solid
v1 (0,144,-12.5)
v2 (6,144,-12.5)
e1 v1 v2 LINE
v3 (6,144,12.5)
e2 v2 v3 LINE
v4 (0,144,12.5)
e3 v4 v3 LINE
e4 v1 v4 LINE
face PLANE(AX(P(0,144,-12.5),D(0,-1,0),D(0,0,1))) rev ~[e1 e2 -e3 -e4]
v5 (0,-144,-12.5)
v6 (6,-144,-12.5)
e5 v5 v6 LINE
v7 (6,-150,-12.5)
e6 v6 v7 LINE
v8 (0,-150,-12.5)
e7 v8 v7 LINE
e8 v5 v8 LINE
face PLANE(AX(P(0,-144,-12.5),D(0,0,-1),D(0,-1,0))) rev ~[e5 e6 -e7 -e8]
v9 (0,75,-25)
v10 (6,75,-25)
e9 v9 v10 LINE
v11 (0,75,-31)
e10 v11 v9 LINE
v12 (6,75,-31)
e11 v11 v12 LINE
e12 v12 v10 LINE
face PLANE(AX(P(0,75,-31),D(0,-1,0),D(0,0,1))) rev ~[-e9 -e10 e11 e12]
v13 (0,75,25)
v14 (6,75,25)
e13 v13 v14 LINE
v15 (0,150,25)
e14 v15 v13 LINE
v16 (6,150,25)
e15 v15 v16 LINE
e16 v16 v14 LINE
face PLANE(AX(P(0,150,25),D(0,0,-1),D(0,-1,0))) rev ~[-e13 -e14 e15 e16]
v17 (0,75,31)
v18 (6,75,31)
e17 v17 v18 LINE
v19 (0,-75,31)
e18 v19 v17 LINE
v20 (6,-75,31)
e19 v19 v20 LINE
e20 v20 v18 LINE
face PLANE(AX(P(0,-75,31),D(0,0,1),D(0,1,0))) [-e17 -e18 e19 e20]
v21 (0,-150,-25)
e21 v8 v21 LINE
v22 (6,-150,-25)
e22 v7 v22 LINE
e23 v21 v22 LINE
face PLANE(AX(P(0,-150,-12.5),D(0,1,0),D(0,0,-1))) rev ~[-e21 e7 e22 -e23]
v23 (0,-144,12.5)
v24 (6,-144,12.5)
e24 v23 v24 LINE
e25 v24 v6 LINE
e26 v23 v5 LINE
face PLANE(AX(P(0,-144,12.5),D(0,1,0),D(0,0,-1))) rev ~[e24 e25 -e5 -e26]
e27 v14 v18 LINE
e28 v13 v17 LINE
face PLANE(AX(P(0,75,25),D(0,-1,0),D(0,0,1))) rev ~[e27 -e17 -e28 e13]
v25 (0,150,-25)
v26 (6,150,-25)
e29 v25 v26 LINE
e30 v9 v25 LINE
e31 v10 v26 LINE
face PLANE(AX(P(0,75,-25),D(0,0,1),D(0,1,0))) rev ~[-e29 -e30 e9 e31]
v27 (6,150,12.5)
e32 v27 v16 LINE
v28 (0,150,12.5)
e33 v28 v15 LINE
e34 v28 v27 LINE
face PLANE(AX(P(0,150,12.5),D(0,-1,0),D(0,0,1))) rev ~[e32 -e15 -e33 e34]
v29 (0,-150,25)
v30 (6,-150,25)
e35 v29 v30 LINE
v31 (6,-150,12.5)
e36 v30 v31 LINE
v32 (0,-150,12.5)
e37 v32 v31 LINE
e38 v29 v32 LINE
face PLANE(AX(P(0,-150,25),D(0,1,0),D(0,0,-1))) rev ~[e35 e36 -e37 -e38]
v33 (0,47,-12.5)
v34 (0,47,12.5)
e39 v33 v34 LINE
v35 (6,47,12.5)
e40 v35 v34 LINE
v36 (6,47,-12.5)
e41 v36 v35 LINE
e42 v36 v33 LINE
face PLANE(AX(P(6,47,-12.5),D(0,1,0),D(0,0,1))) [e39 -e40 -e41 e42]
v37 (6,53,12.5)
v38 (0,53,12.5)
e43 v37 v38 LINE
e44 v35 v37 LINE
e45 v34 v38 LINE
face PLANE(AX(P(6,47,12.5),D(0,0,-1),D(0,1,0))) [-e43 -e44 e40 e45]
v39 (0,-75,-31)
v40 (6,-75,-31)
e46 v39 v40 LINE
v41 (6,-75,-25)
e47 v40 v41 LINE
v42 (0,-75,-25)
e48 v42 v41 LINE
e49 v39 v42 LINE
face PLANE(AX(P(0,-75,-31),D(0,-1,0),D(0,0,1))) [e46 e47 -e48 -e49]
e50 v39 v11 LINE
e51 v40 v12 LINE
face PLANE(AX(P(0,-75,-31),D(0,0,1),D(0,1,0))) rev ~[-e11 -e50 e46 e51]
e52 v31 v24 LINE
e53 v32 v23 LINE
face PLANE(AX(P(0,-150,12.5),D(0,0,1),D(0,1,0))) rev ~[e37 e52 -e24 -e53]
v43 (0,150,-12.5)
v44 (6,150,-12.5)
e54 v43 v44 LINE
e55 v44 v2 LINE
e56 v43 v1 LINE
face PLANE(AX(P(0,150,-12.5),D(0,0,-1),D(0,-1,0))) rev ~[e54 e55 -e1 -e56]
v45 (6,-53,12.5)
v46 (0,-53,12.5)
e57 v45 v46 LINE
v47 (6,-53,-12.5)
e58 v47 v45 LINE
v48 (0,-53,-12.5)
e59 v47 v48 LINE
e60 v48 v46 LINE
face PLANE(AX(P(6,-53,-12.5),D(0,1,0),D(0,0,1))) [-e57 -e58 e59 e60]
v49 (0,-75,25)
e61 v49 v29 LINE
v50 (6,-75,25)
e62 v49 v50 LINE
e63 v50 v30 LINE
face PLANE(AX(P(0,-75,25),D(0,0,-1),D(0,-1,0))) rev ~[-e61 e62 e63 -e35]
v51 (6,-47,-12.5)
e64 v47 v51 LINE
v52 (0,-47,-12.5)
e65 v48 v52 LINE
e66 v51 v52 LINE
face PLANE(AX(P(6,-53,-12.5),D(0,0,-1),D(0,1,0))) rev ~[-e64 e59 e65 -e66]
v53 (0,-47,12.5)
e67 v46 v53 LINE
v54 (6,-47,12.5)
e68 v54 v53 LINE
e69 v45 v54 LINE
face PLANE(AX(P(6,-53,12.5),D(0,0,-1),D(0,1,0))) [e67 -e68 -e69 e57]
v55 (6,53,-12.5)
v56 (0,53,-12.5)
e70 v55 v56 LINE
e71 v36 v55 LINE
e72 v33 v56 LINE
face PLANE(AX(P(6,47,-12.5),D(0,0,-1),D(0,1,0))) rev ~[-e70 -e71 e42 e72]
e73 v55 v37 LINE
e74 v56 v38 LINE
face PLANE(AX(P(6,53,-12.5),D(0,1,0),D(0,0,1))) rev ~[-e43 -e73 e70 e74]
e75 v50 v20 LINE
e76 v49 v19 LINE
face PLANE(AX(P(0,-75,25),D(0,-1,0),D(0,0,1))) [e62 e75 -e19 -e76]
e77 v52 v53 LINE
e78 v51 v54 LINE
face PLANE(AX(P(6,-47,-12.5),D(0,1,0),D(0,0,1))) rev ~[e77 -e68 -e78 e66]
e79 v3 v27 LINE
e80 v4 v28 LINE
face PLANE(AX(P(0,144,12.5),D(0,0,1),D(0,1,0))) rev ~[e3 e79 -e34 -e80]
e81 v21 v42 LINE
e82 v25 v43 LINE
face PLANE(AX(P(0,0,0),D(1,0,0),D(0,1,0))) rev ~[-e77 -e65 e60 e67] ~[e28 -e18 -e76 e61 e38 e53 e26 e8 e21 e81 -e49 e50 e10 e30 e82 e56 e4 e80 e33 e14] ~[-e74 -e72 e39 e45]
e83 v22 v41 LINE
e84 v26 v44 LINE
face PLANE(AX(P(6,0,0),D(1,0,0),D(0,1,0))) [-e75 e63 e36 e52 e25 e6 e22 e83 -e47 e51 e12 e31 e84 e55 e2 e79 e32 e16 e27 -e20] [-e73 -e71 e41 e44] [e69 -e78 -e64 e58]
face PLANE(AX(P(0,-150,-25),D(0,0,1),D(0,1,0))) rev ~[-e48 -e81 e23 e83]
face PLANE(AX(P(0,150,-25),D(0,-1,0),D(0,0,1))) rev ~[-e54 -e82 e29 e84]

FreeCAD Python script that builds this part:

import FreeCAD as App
import Part
import Sketcher

V = App.Vector
Q = App.Units.Quantity


def add_polygon(sketch, points):
    """Adds a closed chain of lines whose ends are joined by coincident constraints."""
    first, n = sketch.GeometryCount, len(points)
    for a, b in zip(points, points[1:] + points[:1]):
        sketch.addGeometry(Part.LineSegment(App.Vector(*a, 0), App.Vector(*b, 0)), False)
    for i in range(n):
        sketch.addConstraint(Sketcher.Constraint("Coincident", first + i, 2, first + (i + 1) % n, 1))

doc = App.newDocument("Part")
body = doc.addObject("PartDesign::Body", "Body")

# Sketch on YZ plane
sketch1 = body.newObject("Sketcher::SketchObject", "Sketch")
sketch1.AttachmentSupport = (doc.getObject("YZ_Plane"), [""])
sketch1.MapMode = "FlatFace"
add_polygon(sketch1, [(-75, 25), (-150, 25), (-150, 12.5), (-144, 12.5), (-144, -12.5), (-150, -12.5), (-150, -25), (-75, -25), (-75, -31), (75, -31), (75, -25), (150, -25), (150, -12.5), (144, -12.5), (144, 12.5), (150, 12.5), (150, 25), (75, 25), (75, 31), (-75, 31)])  # lines 0-19
sketch1.addConstraint(Sketcher.Constraint("Horizontal", 0))
sketch1.addConstraint(Sketcher.Constraint("Vertical", 1))
sketch1.addConstraint(Sketcher.Constraint("Horizontal", 2))
sketch1.addConstraint(Sketcher.Constraint("Vertical", 3))
sketch1.addConstraint(Sketcher.Constraint("Horizontal", 4))
sketch1.addConstraint(Sketcher.Constraint("Vertical", 5))
sketch1.addConstraint(Sketcher.Constraint("Horizontal", 6))
sketch1.addConstraint(Sketcher.Constraint("Vertical", 7))
sketch1.addConstraint(Sketcher.Constraint("Horizontal", 8))
sketch1.addConstraint(Sketcher.Constraint("Vertical", 9))
sketch1.addConstraint(Sketcher.Constraint("Horizontal", 10))
sketch1.addConstraint(Sketcher.Constraint("Vertical", 11))
sketch1.addConstraint(Sketcher.Constraint("Horizontal", 12))
sketch1.addConstraint(Sketcher.Constraint("Vertical", 13))
sketch1.addConstraint(Sketcher.Constraint("Horizontal", 14))
sketch1.addConstraint(Sketcher.Constraint("Vertical", 15))
sketch1.addConstraint(Sketcher.Constraint("Horizontal", 16))
sketch1.addConstraint(Sketcher.Constraint("Vertical", 17))
sketch1.addConstraint(Sketcher.Constraint("Horizontal", 18))
sketch1.addConstraint(Sketcher.Constraint("Vertical", 19))
sketch1.addConstraint(Sketcher.Constraint("Symmetric", 0, 2, 10, 2, -1, 1))
sketch1.addConstraint(Sketcher.Constraint("Symmetric", 2, 2, 12, 2, -1, 1))
sketch1.addConstraint(Sketcher.Constraint("Symmetric", 4, 2, 14, 2, -1, 1))
sketch1.addConstraint(Sketcher.Constraint("Symmetric", 6, 2, 16, 2, -1, 1))
sketch1.addConstraint(Sketcher.Constraint("Symmetric", 8, 2, 18, 2, -1, 1))
sketch1.addConstraint(Sketcher.Constraint("Symmetric", 6, 2, 9, 2, -2))
sketch1.addConstraint(Sketcher.Constraint("Symmetric", 4, 2, 11, 2, -2))
sketch1.addConstraint(Sketcher.Constraint("Equal", 14, 7))
sketch1.addConstraint(Sketcher.Constraint("DistanceX", 0, 2, 0, 1, Q("75 mm")))
sketch1.addConstraint(Sketcher.Constraint("DistanceX", 2, 1, 2, 2, Q("6 mm")))
sketch1.addConstraint(Sketcher.Constraint("DistanceX", 8, 1, 8, 2, Q("150 mm")))
sketch1.addConstraint(Sketcher.Constraint("DistanceY", 3, 2, 3, 1, Q("25 mm")))
sketch1.addConstraint(Sketcher.Constraint("DistanceY", 1, 2, 1, 1, Q("12.5 mm")))
pad1 = body.newObject("PartDesign::Pad", "Pad")
pad1.Profile = sketch1
pad1.Length = 6

# Sketch on YZ plane
sketch2 = body.newObject("Sketcher::SketchObject", "Sketch001")
sketch2.AttachmentSupport = (doc.getObject("YZ_Plane"), [""])
sketch2.MapMode = "FlatFace"
sketch2.AttachmentOffset = App.Placement(V(0, 0, 6), App.Rotation())
add_polygon(sketch2, [(-53, 12.5), (-53, -12.5), (-47, -12.5), (-47, 12.5)])  # lines 0-3
add_polygon(sketch2, [(47, 12.5), (47, -12.5), (53, -12.5), (53, 12.5)])  # lines 4-7
sketch2.addConstraint(Sketcher.Constraint("Vertical", 0))
sketch2.addConstraint(Sketcher.Constraint("Horizontal", 1))
sketch2.addConstraint(Sketcher.Constraint("Vertical", 2))
sketch2.addConstraint(Sketcher.Constraint("Horizontal", 3))
sketch2.addConstraint(Sketcher.Constraint("Vertical", 4))
sketch2.addConstraint(Sketcher.Constraint("Horizontal", 5))
sketch2.addConstraint(Sketcher.Constraint("Vertical", 6))
sketch2.addConstraint(Sketcher.Constraint("Horizontal", 7))
sketch2.addConstraint(Sketcher.Constraint("Symmetric", 2, 2, 4, 2, -1, 1))
sketch2.addConstraint(Sketcher.Constraint("Symmetric", 0, 2, 6, 2, -1, 1))
sketch2.addConstraint(Sketcher.Constraint("Horizontal", 1, 2, 4, 2))
sketch2.addConstraint(Sketcher.Constraint("DistanceX", 1, 1, 1, 2, Q("6 mm")))
sketch2.addConstraint(Sketcher.Constraint("DistanceY", 0, 2, 0, 1, Q("25 mm")))
sketch2.addConstraint(Sketcher.Constraint("DistanceX", 0, 2, -1, 1, Q("53 mm")))
pocket1 = body.newObject("PartDesign::Pocket", "Pocket")
pocket1.Profile = sketch2
pocket1.Type = "ThroughAll"

doc.recompute()
